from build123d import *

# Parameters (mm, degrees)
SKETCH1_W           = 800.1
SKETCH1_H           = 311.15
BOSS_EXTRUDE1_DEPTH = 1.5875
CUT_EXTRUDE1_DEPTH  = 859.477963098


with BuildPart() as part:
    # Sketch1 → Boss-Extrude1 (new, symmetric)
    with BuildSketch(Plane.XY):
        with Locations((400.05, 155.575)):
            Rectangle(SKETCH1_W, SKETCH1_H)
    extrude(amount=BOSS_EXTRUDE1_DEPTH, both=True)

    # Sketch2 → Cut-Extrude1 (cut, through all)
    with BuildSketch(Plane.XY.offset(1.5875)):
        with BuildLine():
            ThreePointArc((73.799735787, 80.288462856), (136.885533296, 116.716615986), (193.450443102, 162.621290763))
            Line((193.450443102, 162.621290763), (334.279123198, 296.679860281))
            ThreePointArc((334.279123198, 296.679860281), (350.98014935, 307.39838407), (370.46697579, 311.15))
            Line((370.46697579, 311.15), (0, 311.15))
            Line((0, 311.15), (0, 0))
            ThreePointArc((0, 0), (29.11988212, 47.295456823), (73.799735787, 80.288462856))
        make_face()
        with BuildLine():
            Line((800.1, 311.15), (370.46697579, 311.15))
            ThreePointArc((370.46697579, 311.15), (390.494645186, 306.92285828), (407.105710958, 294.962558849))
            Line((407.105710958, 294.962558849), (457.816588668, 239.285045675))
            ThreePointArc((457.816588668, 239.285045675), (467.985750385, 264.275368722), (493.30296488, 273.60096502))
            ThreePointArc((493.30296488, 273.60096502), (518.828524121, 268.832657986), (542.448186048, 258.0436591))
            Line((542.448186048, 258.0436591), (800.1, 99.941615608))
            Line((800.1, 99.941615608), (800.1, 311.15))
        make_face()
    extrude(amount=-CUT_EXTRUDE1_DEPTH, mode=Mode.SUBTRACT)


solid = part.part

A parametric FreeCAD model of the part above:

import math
import FreeCAD as App
import Part
import Sketcher

V = App.Vector
Q = App.Units.Quantity


def add_polygon(sketch, points):
    """Adds a closed chain of lines whose ends are joined by coincident constraints."""
    first, n = sketch.GeometryCount, len(points)
    for a, b in zip(points, points[1:] + points[:1]):
        sketch.addGeometry(Part.LineSegment(App.Vector(*a, 0), App.Vector(*b, 0)), False)
    for i in range(n):
        sketch.addConstraint(Sketcher.Constraint("Coincident", first + i, 2, first + (i + 1) % n, 1))

doc = App.newDocument("Part")
body = doc.addObject("PartDesign::Body", "Body")

# Sketch on XY plane
sketch1 = body.newObject("Sketcher::SketchObject", "Sketch")
sketch1.AttachmentSupport = (doc.getObject("XY_Plane"), [""])
sketch1.MapMode = "FlatFace"
add_polygon(sketch1, [(0, 311), (0, 0), (800, 0), (800, 311)])  # lines 0-3
sketch1.addConstraint([
    Sketcher.Constraint("Vertical", 0),
    Sketcher.Constraint("Horizontal", 1),
    Sketcher.Constraint("Vertical", 2),
    Sketcher.Constraint("Horizontal", 3),
    Sketcher.Constraint("Coincident", 0, 2, -1, 1),
    Sketcher.Constraint("DistanceX", 1, 1, 1, 2, Q("31.5 in")),
    Sketcher.Constraint("DistanceY", 0, 2, 0, 1, Q("12.25 in")),
])
pad1 = body.newObject("PartDesign::Pad", "Pad")
pad1.Profile = sketch1
pad1.Length = Q("0.125 in")
pad1.Midplane = True

# Sketch on XY plane
sketch2 = body.newObject("Sketcher::SketchObject", "Sketch001")
sketch2.AttachmentSupport = (doc.getObject("XY_Plane"), [""])
sketch2.MapMode = "FlatFace"
sketch2.AttachmentOffset = App.Placement(V(0, 0, 0.0625 * 25.4), App.Rotation())
sketch2.addGeometry([
    Part.ArcOfCircle(Part.Circle(V(-125, 497, 0), V(0, 0, 1), 461), math.radians(-64.52), math.radians(-46.41)),  # 0
    Part.LineSegment(V(193, 163, 0), V(334, 297, 0)),  # 1
    Part.ArcOfCircle(Part.Circle(V(370, 259, 0), V(0, 0, 1), 52), math.radians(90), math.radians(134)),  # 2
    Part.LineSegment(V(370, 311, 0), V(0, 311, 0)),  # 3
    Part.LineSegment(V(0, 311, 0), V(0, 0, 0)),  # 4
    Part.ArcOfCircle(Part.Circle(V(137, -51, 0), V(0, 0, 1), 146), math.radians(115), math.radians(159)),  # 5
    Part.LineSegment(V(800, 311, 0), V(370, 311, 0)),  # 6
    Part.ArcOfCircle(Part.Circle(V(370, 262, 0), V(0, 0, 1), 50), math.radians(42), math.radians(90)),  # 7
    Part.LineSegment(V(407, 295, 0), V(458, 239, 0)),  # 8
    Part.ArcOfCircle(Part.Circle(V(491, 240, 0), V(0, 0, 1), 33), math.radians(86), math.radians(182)),  # 9
    Part.ArcOfCircle(Part.Circle(V(487, 167, 0), V(0, 0, 1), 107), math.radians(58), math.radians(86)),  # 10
    Part.LineSegment(V(542, 258, 0), V(800, 100, 0)),  # 11
    Part.LineSegment(V(800, 100, 0), V(800, 311, 0)),  # 12
], False)
sketch2.addConstraint([
    Sketcher.Constraint("Tangent", 0, 2, 1, 1),
    Sketcher.Constraint("Tangent", 1, 2, 2, 2),
    Sketcher.Constraint("Tangent", 2, 1, 3, 1),
    Sketcher.Constraint("Coincident", 3, 2, 4, 1),
    Sketcher.Constraint("Coincident", 4, 2, 5, 2),
    Sketcher.Constraint("Tangent", 5, 1, 0, 1),
    Sketcher.Constraint("Tangent", 6, 2, 7, 2),
    Sketcher.Constraint("Tangent", 7, 1, 8, 1),
    Sketcher.Constraint("Coincident", 8, 2, 9, 2),
    Sketcher.Constraint("Tangent", 9, 1, 10, 2),
    Sketcher.Constraint("Tangent", 10, 1, 11, 1),
    Sketcher.Constraint("Coincident", 11, 2, 12, 1),
    Sketcher.Constraint("Coincident", 12, 2, 6, 1),
    Sketcher.Constraint("Horizontal", 3),
    Sketcher.Constraint("Vertical", 4),
    Sketcher.Constraint("Horizontal", 6),
    Sketcher.Constraint("Vertical", 12),
    Sketcher.Constraint("Coincident", 4, 2, -1, 1),
    Sketcher.Constraint("Coincident", 6, 2, 2, 1),
    Sketcher.Constraint("DistanceY", 4, 2, 4, 1, Q("12.25 in")),
    Sketcher.Constraint("DistanceX", -1, 1, 11, 2, Q("31.5 in")),
    Sketcher.Constraint("Radius", 0, 461.330018),
    Sketcher.Constraint("Radius", 2, 52.48552),
    Sketcher.Constraint("Radius", 7, 49.557869),
    Sketcher.Constraint("Radius", 5, 145.960775),
    Sketcher.Constraint("Radius", 9, 33.405006),
    Sketcher.Constraint("Radius", 10, 106.773467),
    Sketcher.Constraint("DistanceY", 9, 3, 0, 3, Q("10.0985001 in")),
    Sketcher.Constraint("DistanceY", 10, 1, 7, 1, Q("1.4535 in")),
    Sketcher.Constraint("DistanceX", 5, 3, 9, 3, 354.626598),
    Sketcher.Constraint("DistanceY", 5, 3, 9, 3, 291.742399),
    Sketcher.Constraint("DistanceY", 9, 3, 1, 2, 56.418102),
    Sketcher.Constraint("DistanceY", 7, 1, 1, 2, 1.717301),
    Sketcher.Constraint("DistanceY", 11, 2, 10, 3, 67.096201),
    Sketcher.Constraint("Distance", 1, 194.43358),
])
pocket1 = body.newObject("PartDesign::Pocket", "Pocket")
pocket1.Profile = sketch2
pocket1.Type = "ThroughAll"

doc.recompute()
